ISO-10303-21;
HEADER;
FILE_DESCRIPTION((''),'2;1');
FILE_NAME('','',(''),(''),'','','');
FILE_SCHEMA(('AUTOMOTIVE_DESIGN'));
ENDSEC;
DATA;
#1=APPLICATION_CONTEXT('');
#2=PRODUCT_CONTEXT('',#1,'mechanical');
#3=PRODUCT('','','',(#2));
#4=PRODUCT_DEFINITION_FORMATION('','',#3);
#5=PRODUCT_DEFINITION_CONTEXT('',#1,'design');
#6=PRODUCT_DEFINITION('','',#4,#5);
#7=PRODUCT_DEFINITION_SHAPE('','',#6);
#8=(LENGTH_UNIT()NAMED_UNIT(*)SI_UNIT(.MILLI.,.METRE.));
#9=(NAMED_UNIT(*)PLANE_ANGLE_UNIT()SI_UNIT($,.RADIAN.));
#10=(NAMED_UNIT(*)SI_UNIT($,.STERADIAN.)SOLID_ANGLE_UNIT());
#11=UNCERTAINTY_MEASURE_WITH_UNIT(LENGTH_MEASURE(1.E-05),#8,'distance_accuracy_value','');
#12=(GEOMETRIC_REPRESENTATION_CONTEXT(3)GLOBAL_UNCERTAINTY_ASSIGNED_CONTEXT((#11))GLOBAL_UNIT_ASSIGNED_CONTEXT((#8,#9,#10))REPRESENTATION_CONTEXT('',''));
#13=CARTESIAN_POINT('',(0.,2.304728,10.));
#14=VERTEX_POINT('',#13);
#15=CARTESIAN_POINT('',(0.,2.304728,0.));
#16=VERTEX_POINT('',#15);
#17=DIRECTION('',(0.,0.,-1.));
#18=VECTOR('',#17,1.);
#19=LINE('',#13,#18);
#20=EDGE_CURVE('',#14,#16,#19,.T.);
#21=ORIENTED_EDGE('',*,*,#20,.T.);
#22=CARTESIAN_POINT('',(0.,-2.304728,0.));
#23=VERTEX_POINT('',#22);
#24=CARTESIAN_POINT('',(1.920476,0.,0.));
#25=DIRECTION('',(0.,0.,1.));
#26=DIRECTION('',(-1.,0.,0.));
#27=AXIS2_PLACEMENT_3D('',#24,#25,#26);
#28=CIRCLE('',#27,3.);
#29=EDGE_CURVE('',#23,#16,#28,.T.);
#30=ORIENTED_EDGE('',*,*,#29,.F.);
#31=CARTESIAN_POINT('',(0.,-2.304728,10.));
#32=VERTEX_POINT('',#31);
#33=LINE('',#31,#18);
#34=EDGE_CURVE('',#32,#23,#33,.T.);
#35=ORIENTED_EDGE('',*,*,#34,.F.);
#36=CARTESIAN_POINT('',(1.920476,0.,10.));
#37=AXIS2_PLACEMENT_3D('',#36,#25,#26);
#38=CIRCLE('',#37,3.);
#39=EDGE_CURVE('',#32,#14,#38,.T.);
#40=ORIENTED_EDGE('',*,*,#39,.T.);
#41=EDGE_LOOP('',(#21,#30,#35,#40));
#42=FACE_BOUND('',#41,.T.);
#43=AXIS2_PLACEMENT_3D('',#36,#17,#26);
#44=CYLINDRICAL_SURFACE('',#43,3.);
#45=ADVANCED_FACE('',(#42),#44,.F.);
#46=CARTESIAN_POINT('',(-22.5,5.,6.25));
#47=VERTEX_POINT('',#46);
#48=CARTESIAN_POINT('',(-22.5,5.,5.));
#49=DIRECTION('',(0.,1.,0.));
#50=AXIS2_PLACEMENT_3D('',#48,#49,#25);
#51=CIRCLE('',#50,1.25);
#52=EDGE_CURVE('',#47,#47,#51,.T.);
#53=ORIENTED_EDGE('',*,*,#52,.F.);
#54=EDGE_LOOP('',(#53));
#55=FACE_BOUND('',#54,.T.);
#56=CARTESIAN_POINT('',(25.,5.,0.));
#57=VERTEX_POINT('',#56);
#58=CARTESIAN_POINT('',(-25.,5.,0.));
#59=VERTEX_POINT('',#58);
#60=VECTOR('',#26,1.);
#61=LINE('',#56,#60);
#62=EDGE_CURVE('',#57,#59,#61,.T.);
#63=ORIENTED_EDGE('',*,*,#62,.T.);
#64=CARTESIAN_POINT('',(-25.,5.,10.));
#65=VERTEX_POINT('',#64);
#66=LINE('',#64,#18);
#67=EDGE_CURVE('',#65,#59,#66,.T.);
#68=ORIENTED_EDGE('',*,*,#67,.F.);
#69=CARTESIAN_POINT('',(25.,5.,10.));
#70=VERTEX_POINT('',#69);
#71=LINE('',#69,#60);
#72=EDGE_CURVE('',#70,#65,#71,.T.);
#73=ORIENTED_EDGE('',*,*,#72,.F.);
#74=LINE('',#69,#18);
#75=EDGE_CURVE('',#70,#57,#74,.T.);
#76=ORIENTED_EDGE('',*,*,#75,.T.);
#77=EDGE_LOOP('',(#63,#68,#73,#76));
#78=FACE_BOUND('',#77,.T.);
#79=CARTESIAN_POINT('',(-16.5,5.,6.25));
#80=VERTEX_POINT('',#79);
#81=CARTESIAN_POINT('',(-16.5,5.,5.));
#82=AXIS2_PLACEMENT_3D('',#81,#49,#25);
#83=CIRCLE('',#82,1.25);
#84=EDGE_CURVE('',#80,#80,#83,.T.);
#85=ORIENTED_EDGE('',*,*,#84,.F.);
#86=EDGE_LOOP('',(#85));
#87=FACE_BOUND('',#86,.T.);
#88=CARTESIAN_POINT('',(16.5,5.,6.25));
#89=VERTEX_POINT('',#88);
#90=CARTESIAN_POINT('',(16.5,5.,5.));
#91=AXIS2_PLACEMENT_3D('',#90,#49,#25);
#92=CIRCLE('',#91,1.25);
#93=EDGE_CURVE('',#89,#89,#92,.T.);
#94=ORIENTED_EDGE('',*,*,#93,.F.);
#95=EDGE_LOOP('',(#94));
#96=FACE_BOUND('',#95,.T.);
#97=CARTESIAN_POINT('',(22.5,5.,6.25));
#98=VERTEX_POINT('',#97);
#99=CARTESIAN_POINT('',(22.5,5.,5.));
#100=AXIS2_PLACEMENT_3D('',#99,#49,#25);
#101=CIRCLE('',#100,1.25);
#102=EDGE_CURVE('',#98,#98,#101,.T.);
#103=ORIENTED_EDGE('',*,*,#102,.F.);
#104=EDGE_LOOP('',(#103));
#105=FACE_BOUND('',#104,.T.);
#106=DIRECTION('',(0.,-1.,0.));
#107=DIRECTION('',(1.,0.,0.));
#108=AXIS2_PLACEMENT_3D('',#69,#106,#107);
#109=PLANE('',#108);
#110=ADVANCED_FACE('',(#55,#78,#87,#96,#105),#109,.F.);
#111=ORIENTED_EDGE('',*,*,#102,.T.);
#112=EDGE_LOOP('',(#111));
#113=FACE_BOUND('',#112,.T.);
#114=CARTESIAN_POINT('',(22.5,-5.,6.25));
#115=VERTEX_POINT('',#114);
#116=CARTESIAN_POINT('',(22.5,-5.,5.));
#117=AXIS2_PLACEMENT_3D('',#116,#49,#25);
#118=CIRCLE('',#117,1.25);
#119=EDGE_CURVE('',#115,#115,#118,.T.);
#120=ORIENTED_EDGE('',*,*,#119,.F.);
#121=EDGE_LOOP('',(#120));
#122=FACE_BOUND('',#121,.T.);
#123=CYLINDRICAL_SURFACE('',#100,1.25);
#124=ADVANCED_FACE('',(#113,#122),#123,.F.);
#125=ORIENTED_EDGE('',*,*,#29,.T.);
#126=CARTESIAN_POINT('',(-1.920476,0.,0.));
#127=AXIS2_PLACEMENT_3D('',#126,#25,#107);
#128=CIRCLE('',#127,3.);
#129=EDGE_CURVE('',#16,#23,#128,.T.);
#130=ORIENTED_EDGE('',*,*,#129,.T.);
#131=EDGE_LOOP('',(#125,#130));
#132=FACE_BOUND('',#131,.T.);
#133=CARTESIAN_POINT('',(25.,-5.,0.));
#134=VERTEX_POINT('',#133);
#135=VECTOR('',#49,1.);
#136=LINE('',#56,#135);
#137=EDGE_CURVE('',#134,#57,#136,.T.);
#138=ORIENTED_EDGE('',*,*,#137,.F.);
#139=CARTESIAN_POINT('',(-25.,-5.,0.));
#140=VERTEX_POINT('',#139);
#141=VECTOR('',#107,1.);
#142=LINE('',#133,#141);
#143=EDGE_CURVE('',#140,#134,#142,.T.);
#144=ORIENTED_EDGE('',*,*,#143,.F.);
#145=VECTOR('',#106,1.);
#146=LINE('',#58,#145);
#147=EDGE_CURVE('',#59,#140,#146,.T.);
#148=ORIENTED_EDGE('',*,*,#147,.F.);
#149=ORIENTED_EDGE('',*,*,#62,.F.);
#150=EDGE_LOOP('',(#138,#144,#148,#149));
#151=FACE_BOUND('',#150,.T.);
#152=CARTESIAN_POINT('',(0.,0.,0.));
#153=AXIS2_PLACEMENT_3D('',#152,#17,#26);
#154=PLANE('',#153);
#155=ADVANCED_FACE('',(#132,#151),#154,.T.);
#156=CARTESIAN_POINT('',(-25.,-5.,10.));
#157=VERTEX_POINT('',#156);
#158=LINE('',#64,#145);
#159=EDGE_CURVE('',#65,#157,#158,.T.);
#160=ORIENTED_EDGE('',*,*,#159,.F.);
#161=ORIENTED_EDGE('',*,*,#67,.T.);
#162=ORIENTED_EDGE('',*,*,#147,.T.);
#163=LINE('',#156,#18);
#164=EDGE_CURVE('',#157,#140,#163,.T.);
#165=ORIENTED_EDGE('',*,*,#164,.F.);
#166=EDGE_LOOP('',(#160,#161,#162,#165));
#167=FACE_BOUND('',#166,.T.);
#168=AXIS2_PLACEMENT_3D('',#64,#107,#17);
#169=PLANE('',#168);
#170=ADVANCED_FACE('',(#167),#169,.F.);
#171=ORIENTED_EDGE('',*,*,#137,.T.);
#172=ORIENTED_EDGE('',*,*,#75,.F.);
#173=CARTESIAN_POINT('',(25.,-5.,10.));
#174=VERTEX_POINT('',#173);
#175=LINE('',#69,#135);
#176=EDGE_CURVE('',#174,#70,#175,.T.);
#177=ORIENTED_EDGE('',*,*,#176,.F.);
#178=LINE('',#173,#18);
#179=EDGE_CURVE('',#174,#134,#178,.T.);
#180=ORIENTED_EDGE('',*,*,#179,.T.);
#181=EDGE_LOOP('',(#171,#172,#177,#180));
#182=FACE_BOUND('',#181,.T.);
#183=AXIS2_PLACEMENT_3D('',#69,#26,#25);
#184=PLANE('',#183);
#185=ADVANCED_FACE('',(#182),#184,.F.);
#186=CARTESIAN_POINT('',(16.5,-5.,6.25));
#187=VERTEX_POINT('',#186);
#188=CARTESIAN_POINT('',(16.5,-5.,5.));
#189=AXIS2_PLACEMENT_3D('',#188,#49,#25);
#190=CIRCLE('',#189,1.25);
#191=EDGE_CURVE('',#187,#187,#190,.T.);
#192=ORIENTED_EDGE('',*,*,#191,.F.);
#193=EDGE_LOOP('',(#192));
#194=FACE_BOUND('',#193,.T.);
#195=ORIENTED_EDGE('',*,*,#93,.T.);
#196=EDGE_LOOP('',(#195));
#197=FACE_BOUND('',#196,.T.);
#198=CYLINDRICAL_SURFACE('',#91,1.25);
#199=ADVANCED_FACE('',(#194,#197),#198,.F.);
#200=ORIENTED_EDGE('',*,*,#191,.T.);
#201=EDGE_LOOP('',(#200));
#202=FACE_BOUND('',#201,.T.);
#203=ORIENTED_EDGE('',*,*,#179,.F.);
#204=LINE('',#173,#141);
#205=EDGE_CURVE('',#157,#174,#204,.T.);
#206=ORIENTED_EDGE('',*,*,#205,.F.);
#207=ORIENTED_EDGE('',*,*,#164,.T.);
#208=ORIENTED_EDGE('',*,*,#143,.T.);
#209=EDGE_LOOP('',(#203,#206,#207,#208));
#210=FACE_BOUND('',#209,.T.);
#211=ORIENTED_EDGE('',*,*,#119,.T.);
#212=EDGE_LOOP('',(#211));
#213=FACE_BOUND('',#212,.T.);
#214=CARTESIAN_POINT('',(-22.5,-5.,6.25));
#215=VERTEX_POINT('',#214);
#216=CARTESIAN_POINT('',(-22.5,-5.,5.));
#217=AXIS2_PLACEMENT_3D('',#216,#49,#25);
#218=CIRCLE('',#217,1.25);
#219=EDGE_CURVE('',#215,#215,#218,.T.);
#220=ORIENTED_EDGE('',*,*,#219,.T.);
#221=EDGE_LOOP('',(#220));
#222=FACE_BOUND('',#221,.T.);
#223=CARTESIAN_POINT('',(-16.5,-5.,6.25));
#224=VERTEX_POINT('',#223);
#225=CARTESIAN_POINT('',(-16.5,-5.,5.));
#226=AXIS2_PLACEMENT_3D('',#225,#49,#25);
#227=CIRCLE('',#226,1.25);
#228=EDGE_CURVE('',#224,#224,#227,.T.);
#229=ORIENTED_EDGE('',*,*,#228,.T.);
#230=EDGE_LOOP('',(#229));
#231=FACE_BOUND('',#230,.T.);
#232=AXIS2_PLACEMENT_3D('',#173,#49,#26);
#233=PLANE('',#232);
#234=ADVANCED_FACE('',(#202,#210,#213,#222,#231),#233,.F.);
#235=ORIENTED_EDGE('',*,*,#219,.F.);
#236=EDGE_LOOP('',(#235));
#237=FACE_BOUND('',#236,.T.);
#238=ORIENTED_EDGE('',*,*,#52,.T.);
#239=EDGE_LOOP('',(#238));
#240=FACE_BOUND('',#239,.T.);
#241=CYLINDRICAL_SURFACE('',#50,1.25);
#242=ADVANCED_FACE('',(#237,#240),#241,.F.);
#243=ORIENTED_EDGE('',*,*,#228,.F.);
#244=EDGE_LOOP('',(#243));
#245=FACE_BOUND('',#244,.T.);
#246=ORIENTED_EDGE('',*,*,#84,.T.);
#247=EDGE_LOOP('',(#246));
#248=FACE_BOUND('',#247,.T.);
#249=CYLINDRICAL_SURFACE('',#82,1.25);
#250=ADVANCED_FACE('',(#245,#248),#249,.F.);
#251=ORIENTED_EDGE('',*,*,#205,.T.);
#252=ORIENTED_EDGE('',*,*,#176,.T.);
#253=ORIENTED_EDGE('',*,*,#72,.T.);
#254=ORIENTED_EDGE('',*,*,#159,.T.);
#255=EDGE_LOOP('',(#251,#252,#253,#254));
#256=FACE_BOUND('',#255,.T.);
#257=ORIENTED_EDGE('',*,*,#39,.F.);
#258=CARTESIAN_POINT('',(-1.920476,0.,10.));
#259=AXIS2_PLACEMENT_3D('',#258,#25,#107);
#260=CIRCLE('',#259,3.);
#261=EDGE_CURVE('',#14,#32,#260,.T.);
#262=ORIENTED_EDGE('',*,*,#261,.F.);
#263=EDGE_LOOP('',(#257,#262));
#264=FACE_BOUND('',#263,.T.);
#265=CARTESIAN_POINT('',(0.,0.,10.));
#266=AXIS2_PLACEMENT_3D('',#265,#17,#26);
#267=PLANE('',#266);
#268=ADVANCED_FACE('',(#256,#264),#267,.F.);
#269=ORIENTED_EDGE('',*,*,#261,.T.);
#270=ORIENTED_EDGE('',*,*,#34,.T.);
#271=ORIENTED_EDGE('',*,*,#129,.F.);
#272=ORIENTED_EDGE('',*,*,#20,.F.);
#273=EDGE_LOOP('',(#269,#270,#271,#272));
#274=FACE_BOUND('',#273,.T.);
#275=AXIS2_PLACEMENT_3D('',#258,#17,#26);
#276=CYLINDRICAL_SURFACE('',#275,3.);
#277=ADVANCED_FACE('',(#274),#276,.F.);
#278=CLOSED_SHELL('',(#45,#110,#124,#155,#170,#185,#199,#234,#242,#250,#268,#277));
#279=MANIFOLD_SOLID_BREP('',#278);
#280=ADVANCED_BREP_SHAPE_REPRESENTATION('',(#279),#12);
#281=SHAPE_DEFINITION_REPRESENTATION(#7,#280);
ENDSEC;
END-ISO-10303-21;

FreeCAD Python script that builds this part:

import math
import FreeCAD as App
import Part
import Sketcher
from FreeCAD import Vector


def add_polygon(sketch, points):
    """Adds a closed chain of lines whose ends are joined by coincident constraints."""
    first, n = sketch.GeometryCount, len(points)
    for a, b in zip(points, points[1:] + points[:1]):
        sketch.addGeometry(Part.LineSegment(App.Vector(*a, 0), App.Vector(*b, 0)), False)
    for i in range(n):
        sketch.addConstraint(Sketcher.Constraint("Coincident", first + i, 2, first + (i + 1) % n, 1))

doc = App.newDocument("Part")
body = doc.addObject("PartDesign::Body", "Body")

# Sketch on XY plane
sketch1 = body.newObject("Sketcher::SketchObject", "Sketch")
sketch1.AttachmentSupport = (doc.getObject("XY_Plane"), [""])
sketch1.MapMode = "FlatFace"
add_polygon(sketch1, [(-25, 5), (-25, -5), (25, -5), (25, 5)])  # lines 0-3
sketch1.addGeometry(Part.ArcOfCircle(Part.Circle(Vector(-1.920476, 0, 0), Vector(0, 0, 1), 3), math.radians(50.196337), math.radians(309.803663)), False)  # 4
sketch1.addGeometry(Part.ArcOfCircle(Part.Circle(Vector(1.920476, 0, 0), Vector(0, 0, 1), 3), math.radians(-129.803663), math.radians(129.803663)), False)  # 5
sketch1.addConstraint(Sketcher.Constraint("Coincident", 4, 1, 5, 2))
sketch1.addConstraint(Sketcher.Constraint("Coincident", 5, 1, 4, 2))
sketch1.addConstraint(Sketcher.Constraint("Vertical", 0))
sketch1.addConstraint(Sketcher.Constraint("Horizontal", 1))
sketch1.addConstraint(Sketcher.Constraint("Vertical", 2))
sketch1.addConstraint(Sketcher.Constraint("Horizontal", 3))
sketch1.addConstraint(Sketcher.Constraint("Equal", 4, 5))
sketch1.addConstraint(Sketcher.Constraint("Symmetric", 4, 3, 5, 3, -1, 1))
sketch1.addConstraint(Sketcher.Constraint("Symmetric", 0, 2, 2, 2, -1, 1))
sketch1.addConstraint(Sketcher.Constraint("PointOnObject", 4, 3, -1))
sketch1.addConstraint(Sketcher.Constraint("Radius", 4, 3.0))
sketch1.addConstraint(Sketcher.Constraint("DistanceX", 1, 1, 1, 2, 50.0))
sketch1.addConstraint(Sketcher.Constraint("DistanceY", 0, 2, 0, 1, 10.0))
sketch1.addConstraint(Sketcher.Constraint("DistanceX", 4, 3, -1, 1, 1.920476))
pad1 = body.newObject("PartDesign::Pad", "Pad")
pad1.Profile = sketch1
pad1.Length = 10

# Sketch on XZ plane
sketch2 = body.newObject("Sketcher::SketchObject", "Sketch001")
sketch2.AttachmentSupport = (doc.getObject("XZ_Plane"), [""])
sketch2.MapMode = "FlatFace"
sketch2.AttachmentOffset = App.Placement(Vector(0, 0, -5), App.Rotation())
sketch2.addGeometry(Part.Circle(Vector(-22.5, 5, 0), Vector(0, 0, 1), 1.25), False)
sketch2.addGeometry(Part.Circle(Vector(-16.5, 5, 0), Vector(0, 0, 1), 1.25), False)
sketch2.addConstraint(Sketcher.Constraint("Equal", 0, 1))
sketch2.addConstraint(Sketcher.Constraint("Horizontal", 0, 3, 1, 3))
sketch2.addConstraint(Sketcher.Constraint("Diameter", 0, 2.5))
sketch2.addConstraint(Sketcher.Constraint("DistanceY", -1, 1, 0, 3, 5.0))
sketch2.addConstraint(Sketcher.Constraint("DistanceX", 0, 3, 1, 3, 6.0))
sketch2.addConstraint(Sketcher.Constraint("DistanceX", 0, 3, -1, 1, 22.5))
doc.recompute()
hole = body.newObject("PartDesign::Hole", "Hole")
hole.Profile = sketch2
hole.ThreadType = "None"
hole.Diameter = 2.5
hole.DepthType = "ThroughAll"
hole.Reversed = True

# Sketch on XZ plane
sketch3 = body.newObject("Sketcher::SketchObject", "Sketch002")
sketch3.AttachmentSupport = (doc.getObject("XZ_Plane"), [""])
sketch3.MapMode = "FlatFace"
sketch3.AttachmentOffset = App.Placement(Vector(0, 0, -5), App.Rotation())
sketch3.addGeometry(Part.Circle(Vector(22.5, 5, 0), Vector(0, 0, 1), 1.25), False)
sketch3.addGeometry(Part.Circle(Vector(16.5, 5, 0), Vector(0, 0, 1), 1.25), False)
sketch3.addConstraint(Sketcher.Constraint("Equal", 0, 1))
sketch3.addConstraint(Sketcher.Constraint("Horizontal", 0, 3, 1, 3))
sketch3.addConstraint(Sketcher.Constraint("Diameter", 0, 2.5))
sketch3.addConstraint(Sketcher.Constraint("DistanceY", -1, 1, 0, 3, 5.0))
sketch3.addConstraint(Sketcher.Constraint("DistanceX", 1, 3, 0, 3, 6.0))
sketch3.addConstraint(Sketcher.Constraint("DistanceX", -1, 1, 0, 3, 22.5))
doc.recompute()
hole2 = body.newObject("PartDesign::Hole", "Hole001")
hole2.Profile = sketch3
hole2.ThreadType = "None"
hole2.Diameter = 2.5
hole2.DepthType = "ThroughAll"
hole2.Reversed = True

doc.recompute()
